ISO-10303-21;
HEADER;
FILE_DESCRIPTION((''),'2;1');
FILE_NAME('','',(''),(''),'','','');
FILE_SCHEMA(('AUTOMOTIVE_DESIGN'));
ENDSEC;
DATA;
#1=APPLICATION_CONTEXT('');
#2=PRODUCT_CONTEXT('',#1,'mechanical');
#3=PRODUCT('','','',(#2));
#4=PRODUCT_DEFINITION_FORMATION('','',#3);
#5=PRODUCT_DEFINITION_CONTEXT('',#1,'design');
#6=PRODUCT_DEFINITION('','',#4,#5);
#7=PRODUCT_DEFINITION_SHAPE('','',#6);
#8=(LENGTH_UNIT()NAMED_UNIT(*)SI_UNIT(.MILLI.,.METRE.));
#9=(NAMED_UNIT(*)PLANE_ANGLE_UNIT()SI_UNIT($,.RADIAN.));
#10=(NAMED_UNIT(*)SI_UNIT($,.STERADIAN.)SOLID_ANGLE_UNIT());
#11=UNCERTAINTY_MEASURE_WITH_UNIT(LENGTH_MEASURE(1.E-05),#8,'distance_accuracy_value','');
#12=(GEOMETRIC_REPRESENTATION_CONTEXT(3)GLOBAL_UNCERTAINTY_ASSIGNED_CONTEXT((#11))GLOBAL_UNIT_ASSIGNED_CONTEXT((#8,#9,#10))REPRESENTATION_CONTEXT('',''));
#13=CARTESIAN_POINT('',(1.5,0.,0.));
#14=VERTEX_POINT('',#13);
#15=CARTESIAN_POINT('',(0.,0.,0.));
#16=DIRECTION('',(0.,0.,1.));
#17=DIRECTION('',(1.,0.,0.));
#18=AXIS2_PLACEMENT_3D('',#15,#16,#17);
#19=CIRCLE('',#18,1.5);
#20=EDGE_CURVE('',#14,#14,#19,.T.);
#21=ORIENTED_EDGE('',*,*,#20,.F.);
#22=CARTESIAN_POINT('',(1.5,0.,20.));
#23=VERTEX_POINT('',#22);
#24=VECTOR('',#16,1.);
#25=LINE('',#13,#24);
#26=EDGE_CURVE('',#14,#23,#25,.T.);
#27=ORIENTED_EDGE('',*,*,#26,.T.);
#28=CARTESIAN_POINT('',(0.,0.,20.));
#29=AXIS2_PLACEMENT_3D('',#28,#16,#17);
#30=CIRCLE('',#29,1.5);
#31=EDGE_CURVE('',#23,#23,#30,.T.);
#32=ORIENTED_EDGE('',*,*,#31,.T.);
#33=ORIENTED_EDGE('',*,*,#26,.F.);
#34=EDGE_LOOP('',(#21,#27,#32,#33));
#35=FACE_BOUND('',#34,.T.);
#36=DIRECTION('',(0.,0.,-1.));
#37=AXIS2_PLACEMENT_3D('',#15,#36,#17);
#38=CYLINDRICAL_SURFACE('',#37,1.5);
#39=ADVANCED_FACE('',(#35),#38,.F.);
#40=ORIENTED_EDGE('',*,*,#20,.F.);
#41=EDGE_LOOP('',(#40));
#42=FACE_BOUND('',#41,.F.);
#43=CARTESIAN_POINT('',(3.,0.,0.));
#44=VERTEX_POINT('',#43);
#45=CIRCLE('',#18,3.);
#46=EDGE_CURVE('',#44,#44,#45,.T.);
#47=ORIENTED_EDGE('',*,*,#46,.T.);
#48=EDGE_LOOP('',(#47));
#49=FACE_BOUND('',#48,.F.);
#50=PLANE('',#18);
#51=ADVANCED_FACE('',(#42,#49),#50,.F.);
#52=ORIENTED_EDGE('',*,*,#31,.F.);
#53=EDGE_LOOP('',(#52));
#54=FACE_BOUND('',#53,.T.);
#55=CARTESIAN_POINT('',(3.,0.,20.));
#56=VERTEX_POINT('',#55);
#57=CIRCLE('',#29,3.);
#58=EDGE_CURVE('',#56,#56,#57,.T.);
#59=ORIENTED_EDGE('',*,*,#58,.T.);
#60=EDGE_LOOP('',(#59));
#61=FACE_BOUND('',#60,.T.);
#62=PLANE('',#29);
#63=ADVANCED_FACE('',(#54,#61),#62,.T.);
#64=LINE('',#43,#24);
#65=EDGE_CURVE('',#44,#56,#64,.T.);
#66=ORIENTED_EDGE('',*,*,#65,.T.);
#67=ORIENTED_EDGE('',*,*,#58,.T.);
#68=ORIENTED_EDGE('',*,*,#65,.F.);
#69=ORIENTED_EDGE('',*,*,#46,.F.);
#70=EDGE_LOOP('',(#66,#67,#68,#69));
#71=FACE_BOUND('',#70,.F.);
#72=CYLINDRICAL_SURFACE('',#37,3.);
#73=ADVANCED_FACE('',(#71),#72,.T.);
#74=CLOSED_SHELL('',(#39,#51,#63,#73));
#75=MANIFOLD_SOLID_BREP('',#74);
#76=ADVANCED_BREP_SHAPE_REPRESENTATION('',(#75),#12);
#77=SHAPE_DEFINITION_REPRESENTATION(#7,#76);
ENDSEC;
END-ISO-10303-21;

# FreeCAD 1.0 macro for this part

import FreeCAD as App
import Part
import Sketcher

V = App.Vector

doc = App.newDocument("Part")
body = doc.addObject("PartDesign::Body", "Body")

sketch1 = body.newObject("Sketcher::SketchObject", "Sketch")
sketch1.AttachmentSupport = (doc.getObject("XY_Plane"), [""])
sketch1.MapMode = "FlatFace"
sketch1.addGeometry(Part.Circle(V(0, 0, 0), V(0, 0, 1), 3), False)
sketch1.addGeometry(Part.Circle(V(0, 0, 0), V(0, 0, 1), 1.5), False)
sketch1.addConstraint(Sketcher.Constraint("Coincident", 0, 3, -1, 1))
sketch1.addConstraint(Sketcher.Constraint("Coincident", 1, 3, -1, 1))
sketch1.addConstraint(Sketcher.Constraint("Diameter", 0, 6.0))
sketch1.addConstraint(Sketcher.Constraint("Diameter", 1, 3.0))
pad1 = body.newObject("PartDesign::Pad", "Pad")
pad1.Profile = sketch1
pad1.Length = 20

doc.recompute()
